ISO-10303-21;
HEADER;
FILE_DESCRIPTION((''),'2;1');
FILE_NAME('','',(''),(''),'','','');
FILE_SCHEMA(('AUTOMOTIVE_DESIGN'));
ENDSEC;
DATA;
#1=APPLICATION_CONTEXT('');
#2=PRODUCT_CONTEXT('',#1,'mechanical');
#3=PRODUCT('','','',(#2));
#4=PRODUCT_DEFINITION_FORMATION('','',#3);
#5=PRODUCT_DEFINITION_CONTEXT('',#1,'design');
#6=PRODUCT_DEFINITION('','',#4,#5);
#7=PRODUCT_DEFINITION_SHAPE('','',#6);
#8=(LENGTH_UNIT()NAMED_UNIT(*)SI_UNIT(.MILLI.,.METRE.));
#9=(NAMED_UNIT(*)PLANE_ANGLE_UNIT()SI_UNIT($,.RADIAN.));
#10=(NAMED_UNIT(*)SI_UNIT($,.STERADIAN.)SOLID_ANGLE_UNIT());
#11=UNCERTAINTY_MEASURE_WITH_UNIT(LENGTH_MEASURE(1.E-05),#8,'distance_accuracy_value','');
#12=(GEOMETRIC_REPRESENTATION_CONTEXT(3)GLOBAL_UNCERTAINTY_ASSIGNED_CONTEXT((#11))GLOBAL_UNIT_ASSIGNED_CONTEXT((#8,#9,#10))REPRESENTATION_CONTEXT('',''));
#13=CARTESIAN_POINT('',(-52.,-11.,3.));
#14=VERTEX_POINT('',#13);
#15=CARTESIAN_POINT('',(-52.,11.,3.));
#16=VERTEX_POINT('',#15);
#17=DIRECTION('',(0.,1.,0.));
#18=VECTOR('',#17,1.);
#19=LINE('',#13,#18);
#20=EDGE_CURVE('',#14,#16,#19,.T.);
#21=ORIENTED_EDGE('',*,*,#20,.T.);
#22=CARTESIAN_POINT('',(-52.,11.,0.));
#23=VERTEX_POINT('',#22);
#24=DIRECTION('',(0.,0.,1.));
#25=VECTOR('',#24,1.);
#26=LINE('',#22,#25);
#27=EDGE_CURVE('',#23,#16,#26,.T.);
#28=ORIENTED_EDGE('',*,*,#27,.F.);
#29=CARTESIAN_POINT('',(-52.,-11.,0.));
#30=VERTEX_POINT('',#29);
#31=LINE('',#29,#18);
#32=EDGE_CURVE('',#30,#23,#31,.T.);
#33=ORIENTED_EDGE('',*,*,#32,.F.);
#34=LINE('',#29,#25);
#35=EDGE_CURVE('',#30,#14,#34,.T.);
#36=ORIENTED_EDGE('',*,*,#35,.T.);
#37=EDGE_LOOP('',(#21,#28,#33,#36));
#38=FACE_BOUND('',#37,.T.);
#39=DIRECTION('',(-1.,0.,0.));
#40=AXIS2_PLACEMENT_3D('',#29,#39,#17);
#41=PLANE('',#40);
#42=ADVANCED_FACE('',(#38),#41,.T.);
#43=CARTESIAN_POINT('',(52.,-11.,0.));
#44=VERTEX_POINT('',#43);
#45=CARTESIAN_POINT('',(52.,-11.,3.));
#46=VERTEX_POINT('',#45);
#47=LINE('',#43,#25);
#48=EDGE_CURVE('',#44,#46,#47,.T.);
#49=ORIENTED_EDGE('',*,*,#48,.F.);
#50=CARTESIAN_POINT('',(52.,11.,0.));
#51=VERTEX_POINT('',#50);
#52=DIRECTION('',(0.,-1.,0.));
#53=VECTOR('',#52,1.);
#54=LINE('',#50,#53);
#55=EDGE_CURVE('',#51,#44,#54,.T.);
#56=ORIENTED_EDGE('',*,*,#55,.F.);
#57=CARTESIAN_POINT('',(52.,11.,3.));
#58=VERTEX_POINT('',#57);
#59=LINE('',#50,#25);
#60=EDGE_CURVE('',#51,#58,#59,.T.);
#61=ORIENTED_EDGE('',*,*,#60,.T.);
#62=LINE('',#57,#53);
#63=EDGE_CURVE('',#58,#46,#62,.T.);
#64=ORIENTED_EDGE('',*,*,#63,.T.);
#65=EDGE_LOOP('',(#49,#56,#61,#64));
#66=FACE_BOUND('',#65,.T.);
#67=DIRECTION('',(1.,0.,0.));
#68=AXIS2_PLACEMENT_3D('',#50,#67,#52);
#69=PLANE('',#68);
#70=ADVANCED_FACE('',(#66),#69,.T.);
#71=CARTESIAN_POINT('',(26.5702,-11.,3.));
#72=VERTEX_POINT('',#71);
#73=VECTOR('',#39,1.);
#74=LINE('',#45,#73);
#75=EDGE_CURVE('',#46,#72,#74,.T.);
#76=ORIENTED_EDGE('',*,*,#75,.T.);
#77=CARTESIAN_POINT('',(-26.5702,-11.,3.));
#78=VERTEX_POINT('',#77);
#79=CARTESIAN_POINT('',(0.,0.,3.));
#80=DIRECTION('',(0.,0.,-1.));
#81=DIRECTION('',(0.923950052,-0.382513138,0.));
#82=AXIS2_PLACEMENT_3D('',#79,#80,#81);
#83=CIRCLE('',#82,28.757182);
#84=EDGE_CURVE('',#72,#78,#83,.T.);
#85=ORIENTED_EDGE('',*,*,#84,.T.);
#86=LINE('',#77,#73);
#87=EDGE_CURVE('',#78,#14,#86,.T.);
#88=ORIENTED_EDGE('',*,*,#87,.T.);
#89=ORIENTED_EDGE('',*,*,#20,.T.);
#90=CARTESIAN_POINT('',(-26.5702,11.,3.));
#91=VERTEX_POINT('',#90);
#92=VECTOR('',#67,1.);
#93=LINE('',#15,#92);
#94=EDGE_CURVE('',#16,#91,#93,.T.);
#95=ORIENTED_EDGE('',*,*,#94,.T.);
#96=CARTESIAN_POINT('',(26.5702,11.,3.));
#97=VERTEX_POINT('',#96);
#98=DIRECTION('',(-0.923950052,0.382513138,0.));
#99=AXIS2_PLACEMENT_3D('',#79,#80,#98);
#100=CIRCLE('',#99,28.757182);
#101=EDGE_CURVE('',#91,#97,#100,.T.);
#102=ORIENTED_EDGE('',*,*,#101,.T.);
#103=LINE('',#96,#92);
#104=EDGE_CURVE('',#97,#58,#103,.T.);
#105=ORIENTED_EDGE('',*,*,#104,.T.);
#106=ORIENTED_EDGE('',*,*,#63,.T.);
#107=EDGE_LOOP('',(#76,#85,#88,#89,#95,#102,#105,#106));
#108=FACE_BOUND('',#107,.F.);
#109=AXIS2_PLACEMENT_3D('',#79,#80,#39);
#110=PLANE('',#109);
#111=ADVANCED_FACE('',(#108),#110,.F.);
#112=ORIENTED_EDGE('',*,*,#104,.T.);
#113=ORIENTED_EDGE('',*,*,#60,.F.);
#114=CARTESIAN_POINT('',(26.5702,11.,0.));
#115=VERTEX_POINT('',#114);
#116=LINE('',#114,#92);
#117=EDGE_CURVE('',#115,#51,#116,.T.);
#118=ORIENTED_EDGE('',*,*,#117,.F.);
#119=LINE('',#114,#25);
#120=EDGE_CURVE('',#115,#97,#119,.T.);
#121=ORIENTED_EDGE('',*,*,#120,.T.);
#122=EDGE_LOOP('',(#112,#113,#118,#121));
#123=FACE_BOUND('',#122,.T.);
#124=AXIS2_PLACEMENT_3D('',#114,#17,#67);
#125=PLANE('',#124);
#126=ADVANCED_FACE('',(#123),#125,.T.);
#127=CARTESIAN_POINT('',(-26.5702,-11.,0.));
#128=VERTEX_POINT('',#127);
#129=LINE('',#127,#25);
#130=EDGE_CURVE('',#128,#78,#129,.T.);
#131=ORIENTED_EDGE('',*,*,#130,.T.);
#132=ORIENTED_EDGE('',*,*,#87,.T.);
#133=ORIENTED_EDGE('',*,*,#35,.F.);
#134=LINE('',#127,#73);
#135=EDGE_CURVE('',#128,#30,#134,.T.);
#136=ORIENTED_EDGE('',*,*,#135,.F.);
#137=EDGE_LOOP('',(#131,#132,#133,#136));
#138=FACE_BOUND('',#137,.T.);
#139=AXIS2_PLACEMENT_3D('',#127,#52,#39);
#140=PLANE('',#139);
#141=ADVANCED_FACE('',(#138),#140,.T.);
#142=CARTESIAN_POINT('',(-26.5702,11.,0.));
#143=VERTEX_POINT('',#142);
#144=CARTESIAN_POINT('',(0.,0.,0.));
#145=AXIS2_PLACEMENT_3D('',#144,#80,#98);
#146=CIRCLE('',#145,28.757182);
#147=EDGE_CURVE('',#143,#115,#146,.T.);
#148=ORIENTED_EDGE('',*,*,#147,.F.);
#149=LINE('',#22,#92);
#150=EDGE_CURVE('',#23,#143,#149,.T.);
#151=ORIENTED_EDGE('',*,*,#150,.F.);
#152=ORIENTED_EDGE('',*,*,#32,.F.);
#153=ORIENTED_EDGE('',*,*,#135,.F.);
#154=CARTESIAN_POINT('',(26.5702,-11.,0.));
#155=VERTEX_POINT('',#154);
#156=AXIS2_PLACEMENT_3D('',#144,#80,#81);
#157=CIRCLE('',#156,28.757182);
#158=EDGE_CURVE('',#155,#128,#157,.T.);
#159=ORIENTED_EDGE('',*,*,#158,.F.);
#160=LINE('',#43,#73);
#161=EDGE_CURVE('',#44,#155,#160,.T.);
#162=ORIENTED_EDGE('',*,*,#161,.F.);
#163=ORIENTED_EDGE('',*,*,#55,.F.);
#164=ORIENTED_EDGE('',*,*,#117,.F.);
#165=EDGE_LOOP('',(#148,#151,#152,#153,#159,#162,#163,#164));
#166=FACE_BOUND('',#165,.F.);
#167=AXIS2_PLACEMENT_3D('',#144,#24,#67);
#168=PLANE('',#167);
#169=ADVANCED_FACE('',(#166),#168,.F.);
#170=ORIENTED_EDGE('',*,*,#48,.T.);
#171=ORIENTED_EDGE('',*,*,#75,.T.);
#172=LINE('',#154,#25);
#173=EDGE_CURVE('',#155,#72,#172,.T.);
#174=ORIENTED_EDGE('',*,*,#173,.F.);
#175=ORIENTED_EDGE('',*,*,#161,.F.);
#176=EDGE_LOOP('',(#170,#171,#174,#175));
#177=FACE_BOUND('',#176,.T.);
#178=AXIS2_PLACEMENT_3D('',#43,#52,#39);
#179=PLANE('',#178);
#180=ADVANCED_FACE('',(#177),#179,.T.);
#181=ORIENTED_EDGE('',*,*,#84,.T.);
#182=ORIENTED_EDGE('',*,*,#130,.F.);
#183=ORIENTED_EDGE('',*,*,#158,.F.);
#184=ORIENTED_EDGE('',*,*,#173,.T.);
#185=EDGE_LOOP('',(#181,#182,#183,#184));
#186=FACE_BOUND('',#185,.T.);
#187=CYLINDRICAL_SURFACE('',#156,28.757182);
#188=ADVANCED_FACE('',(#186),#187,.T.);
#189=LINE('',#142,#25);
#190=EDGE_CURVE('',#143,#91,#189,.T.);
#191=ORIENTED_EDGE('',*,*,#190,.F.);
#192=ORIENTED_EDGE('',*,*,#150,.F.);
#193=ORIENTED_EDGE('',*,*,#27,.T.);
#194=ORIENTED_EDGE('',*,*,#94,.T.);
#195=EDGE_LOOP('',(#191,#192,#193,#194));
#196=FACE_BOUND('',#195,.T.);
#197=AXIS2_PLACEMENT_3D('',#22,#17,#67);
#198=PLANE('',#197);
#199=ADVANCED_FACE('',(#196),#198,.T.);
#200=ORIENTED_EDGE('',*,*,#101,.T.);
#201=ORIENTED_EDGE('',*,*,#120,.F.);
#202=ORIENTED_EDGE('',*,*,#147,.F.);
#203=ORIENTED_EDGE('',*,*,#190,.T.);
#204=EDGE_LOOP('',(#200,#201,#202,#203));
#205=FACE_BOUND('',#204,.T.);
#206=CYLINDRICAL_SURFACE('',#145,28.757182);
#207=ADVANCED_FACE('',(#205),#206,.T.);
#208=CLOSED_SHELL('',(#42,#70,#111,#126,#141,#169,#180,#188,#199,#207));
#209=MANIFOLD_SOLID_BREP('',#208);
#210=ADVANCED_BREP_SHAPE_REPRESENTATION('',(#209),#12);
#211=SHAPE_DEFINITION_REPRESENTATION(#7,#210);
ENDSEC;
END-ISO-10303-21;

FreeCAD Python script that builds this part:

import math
import FreeCAD as App
import Part
import Sketcher
Q = App.Units.Quantity

doc = App.newDocument("Part")
params = doc.addObject("Spreadsheet::Sheet", "Params")
for row, (alias, value) in enumerate([
    ("sketch1_height", "18 mm"),
    ("pad1_length", "3 mm"),
    ("sketch2_height", "22 mm"),
    ("pad2_length", "3 mm"),
], start=1):
    params.set(f"A{row}", alias)
    params.set(f"B{row}", "=" + value)
    params.setAlias(f"B{row}", alias)

body = doc.addObject("PartDesign::Body", "Body")

# Sketch on XY plane
sketch1 = body.newObject("Sketcher::SketchObject", "Sketch")
sketch1.AttachmentSupport = (doc.getObject("XY_Plane"), [""])
sketch1.MapMode = "FlatFace"
sketch1.addGeometry([
    Part.LineSegment(App.Vector(-50, 9, 0), App.Vector(-50, -9, 0)),  # 0
    Part.LineSegment(App.Vector(-50, -9, 0), App.Vector(-25, -9, 0)),  # 1
    Part.ArcOfCircle(Part.Circle(App.Vector(0, 0, 0), App.Vector(0, 0, 1), 27), math.radians(-160), math.radians(-20)),  # 2
    Part.LineSegment(App.Vector(25, -9, 0), App.Vector(50, -9, 0)),  # 3
    Part.LineSegment(App.Vector(50, -9, 0), App.Vector(50, 9, 0)),  # 4
    Part.LineSegment(App.Vector(50, 9, 0), App.Vector(25, 9, 0)),  # 5
    Part.ArcOfCircle(Part.Circle(App.Vector(0, 0, 0), App.Vector(0, 0, 1), 27), math.radians(20), math.radians(160)),  # 6
    Part.LineSegment(App.Vector(-25, 9, 0), App.Vector(-50, 9, 0)),  # 7
], False)
sketch1.addConstraint([
    Sketcher.Constraint("Coincident", 0, 2, 1, 1),
    Sketcher.Constraint("Coincident", 1, 2, 2, 1),
    Sketcher.Constraint("Coincident", 2, 2, 3, 1),
    Sketcher.Constraint("Coincident", 3, 2, 4, 1),
    Sketcher.Constraint("Coincident", 4, 2, 5, 1),
    Sketcher.Constraint("Coincident", 5, 2, 6, 1),
    Sketcher.Constraint("Coincident", 6, 2, 7, 1),
    Sketcher.Constraint("Coincident", 7, 2, 0, 1),
    Sketcher.Constraint("Vertical", 0),
    Sketcher.Constraint("Horizontal", 1),
    Sketcher.Constraint("Horizontal", 3),
    Sketcher.Constraint("Vertical", 4),
    Sketcher.Constraint("Horizontal", 5),
    Sketcher.Constraint("Horizontal", 7),
    Sketcher.Constraint("Coincident", 2, 3, -1, 1),
    Sketcher.Constraint("Coincident", 6, 3, -1, 1),
    Sketcher.Constraint("Equal", 2, 6),
    Sketcher.Constraint("Symmetric", 0, 2, 4, 2, -1, 1),
    Sketcher.Constraint("Horizontal", 1, 2, 2, 2),
    Sketcher.Constraint("Horizontal", 5, 2, 6, 2),
    Sketcher.Constraint("DistanceY", 0, 2, 0, 1, Q("18 mm")),
    Sketcher.Constraint("DistanceX", 0, 2, 3, 2, Q("100 mm")),
    Sketcher.Constraint("Radius", 2, Q("26.7572 mm")),
])
sketch1.setExpression("Constraints[20]", "Params.sketch1_height")
pad1 = body.newObject("PartDesign::Pad", "Pad")
pad1.Profile = sketch1
pad1.setExpression("Length", "Params.pad1_length")

# Sketch on XY plane
sketch2 = body.newObject("Sketcher::SketchObject", "Sketch001")
sketch2.AttachmentSupport = (doc.getObject("XY_Plane"), [""])
sketch2.MapMode = "FlatFace"
sketch2.addGeometry([
    Part.ArcOfCircle(Part.Circle(App.Vector(0, 0, 0), App.Vector(0, 0, 1), 29), math.radians(22), math.radians(158)),  # 0
    Part.LineSegment(App.Vector(27, 11, 0), App.Vector(52, 11, 0)),  # 1
    Part.LineSegment(App.Vector(52, 11, 0), App.Vector(52, -11, 0)),  # 2
    Part.LineSegment(App.Vector(52, -11, 0), App.Vector(27, -11, 0)),  # 3
    Part.ArcOfCircle(Part.Circle(App.Vector(0, 0, 0), App.Vector(0, 0, 1), 29), math.radians(-158), math.radians(-22)),  # 4
    Part.LineSegment(App.Vector(-27, -11, 0), App.Vector(-52, -11, 0)),  # 5
    Part.LineSegment(App.Vector(-52, -11, 0), App.Vector(-52, 11, 0)),  # 6
    Part.LineSegment(App.Vector(-52, 11, 0), App.Vector(-27, 11, 0)),  # 7
    Part.LineSegment(App.Vector(-25, 9, 0), App.Vector(-50, 9, 0)),  # 8
    Part.LineSegment(App.Vector(-50, 9, 0), App.Vector(-50, -9, 0)),  # 9
    Part.LineSegment(App.Vector(-50, -9, 0), App.Vector(-25, -9, 0)),  # 10
    Part.ArcOfCircle(Part.Circle(App.Vector(0, 0, 0), App.Vector(0, 0, 1), 27), math.radians(-160), math.radians(-20)),  # 11
    Part.LineSegment(App.Vector(25, -9, 0), App.Vector(50, -9, 0)),  # 12
    Part.LineSegment(App.Vector(50, -9, 0), App.Vector(50, 9, 0)),  # 13
    Part.LineSegment(App.Vector(50, 9, 0), App.Vector(25, 9, 0)),  # 14
    Part.ArcOfCircle(Part.Circle(App.Vector(0, 0, 0), App.Vector(0, 0, 1), 27), math.radians(20), math.radians(160)),  # 15
], False)
sketch2.addConstraint([
    Sketcher.Constraint("Coincident", 0, 1, 1, 1),
    Sketcher.Constraint("Coincident", 1, 2, 2, 1),
    Sketcher.Constraint("Coincident", 2, 2, 3, 1),
    Sketcher.Constraint("Coincident", 3, 2, 4, 2),
    Sketcher.Constraint("Coincident", 4, 1, 5, 1),
    Sketcher.Constraint("Coincident", 5, 2, 6, 1),
    Sketcher.Constraint("Coincident", 6, 2, 7, 1),
    Sketcher.Constraint("Coincident", 7, 2, 0, 2),
    Sketcher.Constraint("Coincident", 8, 2, 9, 1),
    Sketcher.Constraint("Coincident", 9, 2, 10, 1),
    Sketcher.Constraint("Coincident", 10, 2, 11, 1),
    Sketcher.Constraint("Coincident", 11, 2, 12, 1),
    Sketcher.Constraint("Coincident", 12, 2, 13, 1),
    Sketcher.Constraint("Coincident", 13, 2, 14, 1),
    Sketcher.Constraint("Coincident", 14, 2, 15, 1),
    Sketcher.Constraint("Coincident", 15, 2, 8, 1),
    Sketcher.Constraint("Horizontal", 1),
    Sketcher.Constraint("Vertical", 2),
    Sketcher.Constraint("Horizontal", 3),
    Sketcher.Constraint("Horizontal", 5),
    Sketcher.Constraint("Vertical", 6),
    Sketcher.Constraint("Horizontal", 7),
    Sketcher.Constraint("Horizontal", 8),
    Sketcher.Constraint("Vertical", 9),
    Sketcher.Constraint("Horizontal", 10),
    Sketcher.Constraint("Horizontal", 12),
    Sketcher.Constraint("Vertical", 13),
    Sketcher.Constraint("Horizontal", 14),
    Sketcher.Constraint("Coincident", 0, 3, -1, 1),
    Sketcher.Constraint("Coincident", 4, 3, -1, 1),
    Sketcher.Constraint("Coincident", 11, 3, -1, 1),
    Sketcher.Constraint("Coincident", 15, 3, -1, 1),
    Sketcher.Constraint("Equal", 0, 4),
    Sketcher.Constraint("Equal", 11, 15),
    Sketcher.Constraint("Symmetric", 1, 2, 5, 2, -1, 1),
    Sketcher.Constraint("Symmetric", 8, 2, 12, 2, -1, 1),
    Sketcher.Constraint("Horizontal", 3, 2, 4, 1),
    Sketcher.Constraint("Horizontal", 1, 2, 6, 2),
    Sketcher.Constraint("Horizontal", 10, 2, 11, 2),
    Sketcher.Constraint("Horizontal", 8, 2, 13, 2),
    Sketcher.Constraint("DistanceX", 6, 2, 8, 2, Q("2 mm")),
    Sketcher.Constraint("DistanceY", 8, 2, 6, 2, Q("2 mm")),
    Sketcher.Constraint("DistanceY", 2, 2, 2, 1, Q("22 mm")),
    Sketcher.Constraint("DistanceX", -1, 1, 1, 2, Q("52 mm")),
    Sketcher.Constraint("Radius", 0, Q("28.7572 mm")),
    Sketcher.Constraint("Radius", 11, Q("26.7572 mm")),
])
sketch2.setExpression("Constraints[42]", "Params.sketch2_height")
pad2 = body.newObject("PartDesign::Pad", "Pad001")
pad2.Profile = sketch2
pad2.setExpression("Length", "Params.pad2_length")

doc.recompute()
